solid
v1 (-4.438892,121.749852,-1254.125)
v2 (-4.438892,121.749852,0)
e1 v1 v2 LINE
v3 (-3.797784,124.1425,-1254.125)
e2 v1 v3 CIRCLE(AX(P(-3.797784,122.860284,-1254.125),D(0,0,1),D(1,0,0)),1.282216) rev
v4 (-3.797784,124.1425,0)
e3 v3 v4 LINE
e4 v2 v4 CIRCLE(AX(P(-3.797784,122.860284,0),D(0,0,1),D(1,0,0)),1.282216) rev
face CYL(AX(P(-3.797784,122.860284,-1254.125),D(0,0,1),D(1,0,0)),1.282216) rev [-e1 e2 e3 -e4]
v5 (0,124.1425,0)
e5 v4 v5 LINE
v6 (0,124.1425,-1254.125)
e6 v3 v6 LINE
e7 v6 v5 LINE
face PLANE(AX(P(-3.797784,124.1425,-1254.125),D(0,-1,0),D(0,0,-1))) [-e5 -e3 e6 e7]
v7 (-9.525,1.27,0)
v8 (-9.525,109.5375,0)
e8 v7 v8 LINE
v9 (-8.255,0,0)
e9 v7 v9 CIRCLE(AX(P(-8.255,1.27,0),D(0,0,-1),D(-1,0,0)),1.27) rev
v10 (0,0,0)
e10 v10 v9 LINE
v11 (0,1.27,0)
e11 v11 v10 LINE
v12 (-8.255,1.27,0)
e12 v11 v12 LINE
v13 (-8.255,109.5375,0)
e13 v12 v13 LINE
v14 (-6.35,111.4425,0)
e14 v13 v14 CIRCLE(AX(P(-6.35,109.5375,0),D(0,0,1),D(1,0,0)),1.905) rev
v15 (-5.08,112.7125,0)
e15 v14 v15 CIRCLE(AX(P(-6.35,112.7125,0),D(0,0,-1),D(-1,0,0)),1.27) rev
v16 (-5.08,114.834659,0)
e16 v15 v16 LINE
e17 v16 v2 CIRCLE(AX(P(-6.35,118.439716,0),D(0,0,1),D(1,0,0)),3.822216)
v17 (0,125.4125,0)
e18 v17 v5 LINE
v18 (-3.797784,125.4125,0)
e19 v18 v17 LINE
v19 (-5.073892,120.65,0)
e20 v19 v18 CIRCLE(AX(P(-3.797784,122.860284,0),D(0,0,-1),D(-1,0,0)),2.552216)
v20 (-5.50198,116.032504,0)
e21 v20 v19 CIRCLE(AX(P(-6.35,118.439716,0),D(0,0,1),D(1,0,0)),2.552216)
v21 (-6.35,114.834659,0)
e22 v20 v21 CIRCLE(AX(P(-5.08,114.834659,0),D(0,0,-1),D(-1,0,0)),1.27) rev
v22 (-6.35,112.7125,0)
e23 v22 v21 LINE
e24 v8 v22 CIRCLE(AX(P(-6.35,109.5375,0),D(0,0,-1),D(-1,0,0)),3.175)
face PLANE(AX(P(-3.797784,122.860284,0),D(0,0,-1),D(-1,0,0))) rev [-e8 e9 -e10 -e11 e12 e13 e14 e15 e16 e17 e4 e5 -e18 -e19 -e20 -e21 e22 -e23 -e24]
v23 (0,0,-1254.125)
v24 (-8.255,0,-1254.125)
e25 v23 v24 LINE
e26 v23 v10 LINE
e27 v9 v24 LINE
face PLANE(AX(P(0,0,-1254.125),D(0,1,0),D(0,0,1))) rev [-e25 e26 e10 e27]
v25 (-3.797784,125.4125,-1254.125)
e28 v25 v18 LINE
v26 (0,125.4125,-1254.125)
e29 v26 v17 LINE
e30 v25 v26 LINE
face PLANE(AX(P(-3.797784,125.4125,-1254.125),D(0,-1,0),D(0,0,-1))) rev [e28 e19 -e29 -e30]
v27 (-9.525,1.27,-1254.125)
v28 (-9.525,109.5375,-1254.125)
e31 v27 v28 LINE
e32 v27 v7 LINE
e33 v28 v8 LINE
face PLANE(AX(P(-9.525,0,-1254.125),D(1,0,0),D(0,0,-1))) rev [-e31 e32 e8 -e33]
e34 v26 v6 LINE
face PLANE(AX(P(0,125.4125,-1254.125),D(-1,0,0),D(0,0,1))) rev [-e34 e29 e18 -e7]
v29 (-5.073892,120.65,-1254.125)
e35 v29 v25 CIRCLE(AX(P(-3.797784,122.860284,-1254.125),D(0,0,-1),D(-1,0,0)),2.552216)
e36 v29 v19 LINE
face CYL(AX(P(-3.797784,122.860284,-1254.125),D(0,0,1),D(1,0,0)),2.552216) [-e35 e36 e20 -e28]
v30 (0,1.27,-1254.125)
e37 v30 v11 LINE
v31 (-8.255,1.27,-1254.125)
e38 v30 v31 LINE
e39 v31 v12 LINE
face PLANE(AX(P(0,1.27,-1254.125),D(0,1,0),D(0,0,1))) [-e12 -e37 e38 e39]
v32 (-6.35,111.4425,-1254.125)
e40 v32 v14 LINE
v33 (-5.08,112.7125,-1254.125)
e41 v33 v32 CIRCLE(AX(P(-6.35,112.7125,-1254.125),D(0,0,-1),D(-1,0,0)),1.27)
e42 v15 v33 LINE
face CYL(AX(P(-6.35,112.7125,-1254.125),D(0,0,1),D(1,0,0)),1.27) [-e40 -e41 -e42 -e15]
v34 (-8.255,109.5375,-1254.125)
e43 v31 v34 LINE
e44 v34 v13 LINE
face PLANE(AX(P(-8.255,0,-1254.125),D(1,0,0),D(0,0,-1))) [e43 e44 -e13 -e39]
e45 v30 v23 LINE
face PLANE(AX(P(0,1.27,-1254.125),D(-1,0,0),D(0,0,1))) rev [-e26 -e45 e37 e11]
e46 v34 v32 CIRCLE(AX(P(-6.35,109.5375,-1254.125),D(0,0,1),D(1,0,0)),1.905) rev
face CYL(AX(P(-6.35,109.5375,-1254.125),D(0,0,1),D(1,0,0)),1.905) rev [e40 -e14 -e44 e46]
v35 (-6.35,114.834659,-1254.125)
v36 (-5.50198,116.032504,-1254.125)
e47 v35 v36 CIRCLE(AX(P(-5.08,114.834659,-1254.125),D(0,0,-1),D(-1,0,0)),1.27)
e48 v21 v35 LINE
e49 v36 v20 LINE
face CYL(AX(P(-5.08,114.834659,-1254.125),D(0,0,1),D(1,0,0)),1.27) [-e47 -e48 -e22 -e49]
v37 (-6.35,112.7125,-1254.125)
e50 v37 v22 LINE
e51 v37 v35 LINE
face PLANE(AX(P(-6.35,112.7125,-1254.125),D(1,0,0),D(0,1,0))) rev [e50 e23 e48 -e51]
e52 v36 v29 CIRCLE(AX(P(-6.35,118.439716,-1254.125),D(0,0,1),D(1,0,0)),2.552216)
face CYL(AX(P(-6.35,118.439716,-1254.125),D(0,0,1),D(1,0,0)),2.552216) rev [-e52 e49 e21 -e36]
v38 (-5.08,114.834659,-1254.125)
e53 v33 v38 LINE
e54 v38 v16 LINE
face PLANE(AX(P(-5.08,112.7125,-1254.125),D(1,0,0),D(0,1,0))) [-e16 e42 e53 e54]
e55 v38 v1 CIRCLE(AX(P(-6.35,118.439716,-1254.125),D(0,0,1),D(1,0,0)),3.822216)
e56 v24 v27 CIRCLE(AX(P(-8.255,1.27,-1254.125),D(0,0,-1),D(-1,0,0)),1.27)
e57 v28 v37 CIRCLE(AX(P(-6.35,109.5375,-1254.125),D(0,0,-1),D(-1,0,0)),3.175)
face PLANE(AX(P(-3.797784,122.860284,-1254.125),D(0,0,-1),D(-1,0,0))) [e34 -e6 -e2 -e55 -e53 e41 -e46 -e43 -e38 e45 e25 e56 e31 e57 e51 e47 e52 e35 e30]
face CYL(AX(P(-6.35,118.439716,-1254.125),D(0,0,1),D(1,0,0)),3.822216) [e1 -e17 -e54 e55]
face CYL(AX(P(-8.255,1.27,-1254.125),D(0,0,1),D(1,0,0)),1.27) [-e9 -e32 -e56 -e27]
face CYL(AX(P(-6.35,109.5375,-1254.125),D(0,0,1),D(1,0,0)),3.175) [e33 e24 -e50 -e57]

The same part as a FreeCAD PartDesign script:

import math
import FreeCAD as App
import Part
import Sketcher
from FreeCAD import Vector
Q = App.Units.Quantity


def edges_at(feature, points):
    """Names of the edges that pass closest to the given points."""
    edges = feature.Shape.Edges
    near = lambda p: min(range(len(edges)), key=lambda i: edges[i].distToShape(Part.Vertex(*p))[0])
    return sorted({f"Edge{near(p) + 1}" for p in points})

doc = App.newDocument("Part")
params = doc.addObject("Spreadsheet::Sheet", "Params")
for row, (alias, value) in enumerate([
    ("sketch1_radius", "0.075 in"),
    ("sketch1_radius2", "0.125 in"),
    ("sketch1_height", "0.05 in"),
    ("sketch1_width", "0.375 in"),
    ("sketch1_height2", "0.125 in"),
    ("pad1_length", "49.375 in"),
    ("fillet_radius", "0.05 in"),
], start=1):
    params.set(f"A{row}", alias)
    params.set(f"B{row}", "=" + value)
    params.setAlias(f"B{row}", alias)

body = doc.addObject("PartDesign::Body", "Body")

# Sketch on XY plane
sketch1 = body.newObject("Sketcher::SketchObject", "Sketch")
sketch1.AttachmentSupport = (doc.getObject("XY_Plane"), [""])
sketch1.MapMode = "FlatFace"
sketch1.addGeometry(Part.LineSegment(Vector(-9.5, 0, 0), Vector(0, 0, 0)), False)
sketch1.addGeometry(Part.LineSegment(Vector(0, 0, 0), Vector(0, 1.3, 0)), False)
sketch1.addGeometry(Part.LineSegment(Vector(0, 1.3, 0), Vector(-8.3, 1.3, 0)), False)
sketch1.addGeometry(Part.LineSegment(Vector(-8.3, 1.3, 0), Vector(-8.3, 109.5, 0)), False)
sketch1.addGeometry(Part.ArcOfCircle(Part.Circle(Vector(-6.3, 109.5, 0), Vector(0, 0, 1), 1.9), math.radians(48), math.radians(180)), False)
sketch1.addGeometry(Part.LineSegment(Vector(-5.1, 111, 0), Vector(-5.1, 114.8, 0)), False)
sketch1.addGeometry(Part.ArcOfCircle(Part.Circle(Vector(-6.3, 118.4, 0), Vector(0, 0, 1), 3.8), math.radians(-71), math.radians(60)), False)
sketch1.addGeometry(Part.ArcOfCircle(Part.Circle(Vector(-3.8, 122.9, 0), Vector(0, 0, 1), 1.3), math.radians(90), math.radians(240)), False)
sketch1.addGeometry(Part.LineSegment(Vector(-3.8, 124.1, 0), Vector(0, 124.1, 0)), False)
sketch1.addGeometry(Part.LineSegment(Vector(0, 124.1, 0), Vector(0, 125.4, 0)), False)
sketch1.addGeometry(Part.LineSegment(Vector(0, 125.4, 0), Vector(-3.8, 125.4, 0)), False)
sketch1.addGeometry(Part.ArcOfCircle(Part.Circle(Vector(-3.8, 122.9, 0), Vector(0, 0, 1), 2.6), math.radians(90), math.radians(240)), False)
sketch1.addGeometry(Part.ArcOfCircle(Part.Circle(Vector(-6.3, 118.4, 0), Vector(0, 0, 1), 2.6), math.radians(-90), math.radians(60)), False)
sketch1.addGeometry(Part.LineSegment(Vector(-6.3, 115.9, 0), Vector(-6.3, 112.7, 0)), False)
sketch1.addGeometry(Part.ArcOfCircle(Part.Circle(Vector(-6.3, 109.5, 0), Vector(0, 0, 1), 3.2), math.radians(90), math.radians(180)), False)
sketch1.addGeometry(Part.LineSegment(Vector(-9.5, 109.5, 0), Vector(-9.5, 0, 0)), False)
sketch1.addConstraint(Sketcher.Constraint("Coincident", 0, 2, 1, 1))
sketch1.addConstraint(Sketcher.Constraint("Coincident", 1, 2, 2, 1))
sketch1.addConstraint(Sketcher.Constraint("Coincident", 2, 2, 3, 1))
sketch1.addConstraint(Sketcher.Constraint("Tangent", 3, 2, 4, 2))
sketch1.addConstraint(Sketcher.Constraint("Coincident", 4, 1, 5, 1))
sketch1.addConstraint(Sketcher.Constraint("Coincident", 5, 2, 6, 1))
sketch1.addConstraint(Sketcher.Constraint("Tangent", 6, 2, 7, 2))
sketch1.addConstraint(Sketcher.Constraint("Tangent", 7, 1, 8, 1))
sketch1.addConstraint(Sketcher.Constraint("Coincident", 8, 2, 9, 1))
sketch1.addConstraint(Sketcher.Constraint("Coincident", 9, 2, 10, 1))
sketch1.addConstraint(Sketcher.Constraint("Tangent", 10, 2, 11, 1))
sketch1.addConstraint(Sketcher.Constraint("Tangent", 11, 2, 12, 2))
sketch1.addConstraint(Sketcher.Constraint("Coincident", 12, 1, 13, 1))
sketch1.addConstraint(Sketcher.Constraint("Coincident", 13, 2, 14, 1))
sketch1.addConstraint(Sketcher.Constraint("Tangent", 14, 2, 15, 1))
sketch1.addConstraint(Sketcher.Constraint("Coincident", 15, 2, 0, 1))
sketch1.addConstraint(Sketcher.Constraint("Horizontal", 0))
sketch1.addConstraint(Sketcher.Constraint("Vertical", 1))
sketch1.addConstraint(Sketcher.Constraint("Horizontal", 2))
sketch1.addConstraint(Sketcher.Constraint("Vertical", 3))
sketch1.addConstraint(Sketcher.Constraint("Vertical", 5))
sketch1.addConstraint(Sketcher.Constraint("Horizontal", 8))
sketch1.addConstraint(Sketcher.Constraint("Vertical", 9))
sketch1.addConstraint(Sketcher.Constraint("Horizontal", 10))
sketch1.addConstraint(Sketcher.Constraint("Vertical", 13))
sketch1.addConstraint(Sketcher.Constraint("Vertical", 15))
sketch1.addConstraint(Sketcher.Constraint("Coincident", 0, 2, -1, 1))
sketch1.addConstraint(Sketcher.Constraint("Coincident", 11, 3, 7, 3))
sketch1.addConstraint(Sketcher.Constraint("Coincident", 12, 3, 6, 3))
sketch1.addConstraint(Sketcher.Constraint("Coincident", 14, 3, 4, 3))
sketch1.addConstraint(Sketcher.Constraint("Equal", 11, 12))
sketch1.addConstraint(Sketcher.Constraint("PointOnObject", 8, 2, -2))
sketch1.addConstraint(Sketcher.Constraint("Vertical", 4, 3, 6, 3))
sketch1.addConstraint(Sketcher.Constraint("Vertical", 14, 3, 12, 1))
sketch1.addConstraint(Sketcher.Constraint("Equal", 1, 9))
sketch1.addConstraint(Sketcher.Constraint("Radius", 4, Q("0.075 in")))
sketch1.addConstraint(Sketcher.Constraint("Radius", 14, Q("0.125 in")))
sketch1.addConstraint(Sketcher.Constraint("DistanceY", 1, 1, 1, 2, Q("0.05 in")))
sketch1.addConstraint(Sketcher.Constraint("DistanceX", 4, 1, -1, 1, Q("0.2 in")))
sketch1.addConstraint(Sketcher.Constraint("DistanceX", 0, 1, 0, 2, Q("0.375 in")))
sketch1.addConstraint(Sketcher.Constraint("DistanceY", 13, 2, 13, 1, Q("0.125 in")))
sketch1.addConstraint(Sketcher.Constraint("DistanceY", 15, 2, 15, 1, Q("4.3125 in")))
sketch1.addConstraint(Sketcher.Constraint("DistanceY", -1, 1, 11, 2, Q("4.75 in")))
sketch1.addConstraint(Sketcher.Constraint("DistanceX", 11, 2, 6, 2, Q("0.025 in")))
sketch1.setExpression("Constraints[35]", "Params.sketch1_radius")
sketch1.setExpression("Constraints[36]", "Params.sketch1_radius2")
sketch1.setExpression("Constraints[37]", "Params.sketch1_height")
sketch1.setExpression("Constraints[39]", "Params.sketch1_width")
sketch1.setExpression("Constraints[40]", "Params.sketch1_height2")
pad1 = body.newObject("PartDesign::Pad", "Pad")
pad1.Profile = sketch1
pad1.setExpression("Length", "Params.pad1_length")
pad1.Reversed = True
doc.recompute()

fillet = body.newObject("PartDesign::Fillet", "Fillet")
fillet.Base = (pad1, edges_at(pad1, [(-5.08, 110.957, -627.062), (-9.525, 0, -627.062), (-6.35, 115.888, -627.062)]))
fillet.setExpression("Radius", "Params.fillet_radius")

doc.recompute()
